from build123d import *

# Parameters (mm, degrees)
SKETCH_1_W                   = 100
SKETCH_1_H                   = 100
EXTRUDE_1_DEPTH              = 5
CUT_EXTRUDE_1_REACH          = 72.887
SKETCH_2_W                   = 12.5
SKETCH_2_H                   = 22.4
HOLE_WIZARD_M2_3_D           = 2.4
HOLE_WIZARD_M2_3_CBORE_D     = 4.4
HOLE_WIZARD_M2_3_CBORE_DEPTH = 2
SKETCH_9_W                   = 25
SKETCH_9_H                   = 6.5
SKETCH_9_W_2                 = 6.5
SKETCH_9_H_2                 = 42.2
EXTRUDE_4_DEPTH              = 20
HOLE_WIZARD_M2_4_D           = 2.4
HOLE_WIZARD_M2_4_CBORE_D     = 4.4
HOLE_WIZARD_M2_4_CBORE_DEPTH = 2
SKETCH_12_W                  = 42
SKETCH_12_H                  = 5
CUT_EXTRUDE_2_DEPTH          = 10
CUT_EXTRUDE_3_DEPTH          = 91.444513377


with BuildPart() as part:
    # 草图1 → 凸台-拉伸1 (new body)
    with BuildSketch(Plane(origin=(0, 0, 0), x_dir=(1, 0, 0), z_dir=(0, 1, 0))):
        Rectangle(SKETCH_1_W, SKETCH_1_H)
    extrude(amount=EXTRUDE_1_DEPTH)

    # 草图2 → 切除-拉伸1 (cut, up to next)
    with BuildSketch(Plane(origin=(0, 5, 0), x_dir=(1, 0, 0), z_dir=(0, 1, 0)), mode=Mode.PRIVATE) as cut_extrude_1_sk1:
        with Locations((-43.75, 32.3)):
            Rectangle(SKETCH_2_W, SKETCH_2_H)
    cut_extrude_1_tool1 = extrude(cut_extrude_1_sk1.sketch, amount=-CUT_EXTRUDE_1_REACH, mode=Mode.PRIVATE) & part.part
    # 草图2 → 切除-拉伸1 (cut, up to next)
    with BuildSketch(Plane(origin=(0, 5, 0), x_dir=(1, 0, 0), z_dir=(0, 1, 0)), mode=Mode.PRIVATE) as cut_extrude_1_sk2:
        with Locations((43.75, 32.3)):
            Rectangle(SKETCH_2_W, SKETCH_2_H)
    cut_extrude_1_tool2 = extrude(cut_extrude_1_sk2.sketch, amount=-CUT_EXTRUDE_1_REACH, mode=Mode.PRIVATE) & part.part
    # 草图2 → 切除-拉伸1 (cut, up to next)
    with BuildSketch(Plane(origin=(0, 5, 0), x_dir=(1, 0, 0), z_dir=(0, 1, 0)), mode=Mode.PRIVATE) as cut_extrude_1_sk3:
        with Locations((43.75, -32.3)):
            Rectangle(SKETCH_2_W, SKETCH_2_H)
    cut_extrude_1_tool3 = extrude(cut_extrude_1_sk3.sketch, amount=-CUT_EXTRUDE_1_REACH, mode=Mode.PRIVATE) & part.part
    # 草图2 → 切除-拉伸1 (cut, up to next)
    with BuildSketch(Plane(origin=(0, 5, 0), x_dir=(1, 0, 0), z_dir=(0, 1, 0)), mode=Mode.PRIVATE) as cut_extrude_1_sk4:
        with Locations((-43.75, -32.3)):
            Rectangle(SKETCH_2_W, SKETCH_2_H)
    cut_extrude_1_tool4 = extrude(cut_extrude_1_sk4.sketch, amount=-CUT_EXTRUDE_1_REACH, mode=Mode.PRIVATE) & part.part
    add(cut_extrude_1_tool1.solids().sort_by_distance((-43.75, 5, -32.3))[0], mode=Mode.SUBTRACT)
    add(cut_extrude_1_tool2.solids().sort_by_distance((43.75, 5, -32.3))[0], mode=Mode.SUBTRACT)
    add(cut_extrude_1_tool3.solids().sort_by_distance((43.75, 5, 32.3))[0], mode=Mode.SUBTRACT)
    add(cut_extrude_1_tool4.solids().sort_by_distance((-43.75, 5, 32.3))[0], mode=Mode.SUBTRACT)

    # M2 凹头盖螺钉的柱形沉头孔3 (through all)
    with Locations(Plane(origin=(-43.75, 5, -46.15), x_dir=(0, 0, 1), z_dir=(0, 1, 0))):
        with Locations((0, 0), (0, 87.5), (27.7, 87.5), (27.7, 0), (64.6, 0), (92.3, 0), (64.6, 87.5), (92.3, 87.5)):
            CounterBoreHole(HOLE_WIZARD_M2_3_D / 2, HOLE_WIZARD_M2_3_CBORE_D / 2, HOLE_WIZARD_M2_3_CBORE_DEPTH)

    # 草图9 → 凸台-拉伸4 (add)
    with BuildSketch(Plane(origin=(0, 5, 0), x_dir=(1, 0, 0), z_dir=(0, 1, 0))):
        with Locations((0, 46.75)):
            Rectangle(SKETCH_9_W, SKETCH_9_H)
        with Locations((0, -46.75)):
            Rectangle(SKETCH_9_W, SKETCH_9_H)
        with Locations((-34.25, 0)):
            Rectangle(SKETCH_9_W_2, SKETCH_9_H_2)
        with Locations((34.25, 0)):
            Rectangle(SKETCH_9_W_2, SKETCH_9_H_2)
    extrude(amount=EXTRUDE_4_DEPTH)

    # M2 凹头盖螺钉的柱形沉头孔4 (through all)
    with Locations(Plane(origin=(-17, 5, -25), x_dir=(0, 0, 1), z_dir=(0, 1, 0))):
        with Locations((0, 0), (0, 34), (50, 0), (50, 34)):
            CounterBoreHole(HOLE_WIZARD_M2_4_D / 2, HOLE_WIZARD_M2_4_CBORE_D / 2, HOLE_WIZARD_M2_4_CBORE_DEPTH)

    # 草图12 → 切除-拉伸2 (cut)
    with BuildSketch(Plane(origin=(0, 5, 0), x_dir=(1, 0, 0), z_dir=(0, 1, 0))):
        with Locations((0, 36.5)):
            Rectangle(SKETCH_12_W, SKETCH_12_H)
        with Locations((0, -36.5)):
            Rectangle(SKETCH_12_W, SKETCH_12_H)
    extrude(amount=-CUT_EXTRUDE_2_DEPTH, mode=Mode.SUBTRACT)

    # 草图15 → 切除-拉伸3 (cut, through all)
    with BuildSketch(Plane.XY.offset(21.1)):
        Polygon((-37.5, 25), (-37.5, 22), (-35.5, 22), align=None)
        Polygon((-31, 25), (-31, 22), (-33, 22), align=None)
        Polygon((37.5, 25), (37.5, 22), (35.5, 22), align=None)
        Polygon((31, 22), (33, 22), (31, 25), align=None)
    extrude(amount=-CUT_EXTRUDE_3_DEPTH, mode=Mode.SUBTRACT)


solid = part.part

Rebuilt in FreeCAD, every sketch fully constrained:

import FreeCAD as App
import Part
import Sketcher

V = App.Vector

doc = App.newDocument("Part")
body = doc.addObject("PartDesign::Body", "Body")

# Sketch on XZ plane
sketch1 = body.newObject("Sketcher::SketchObject", "Sketch")
sketch1.AttachmentSupport = (doc.getObject("XZ_Plane"), [""])
sketch1.MapMode = "FlatFace"
sketch1.addGeometry([
    Part.LineSegment(V(-50, -50, 0), V(-50, 50, 0)),
    Part.LineSegment(V(-50, 50, 0), V(50, 50, 0)),
    Part.LineSegment(V(50, 50, 0), V(50, -50, 0)),
    Part.LineSegment(V(50, -50, 0), V(-50, -50, 0)),
], False)
sketch1.addConstraint([
    Sketcher.Constraint("Coincident", 0, 2, 1, 1),
    Sketcher.Constraint("Coincident", 1, 2, 2, 1),
    Sketcher.Constraint("Coincident", 2, 2, 3, 1),
    Sketcher.Constraint("Coincident", 3, 2, 0, 1),
    Sketcher.Constraint("Vertical", 0),
    Sketcher.Constraint("Horizontal", 1),
    Sketcher.Constraint("Vertical", 2),
    Sketcher.Constraint("Horizontal", 3),
    Sketcher.Constraint("Symmetric", 0, 2, 2, 2, -1, 1),
    Sketcher.Constraint("Equal", 3, 0),
    Sketcher.Constraint("DistanceX", 1, 1, 1, 2, 100.0),
])
pad1 = body.newObject("PartDesign::Pad", "Pad")
pad1.Profile = sketch1
pad1.Length = 5
pad1.Reversed = True

# Sketch on XZ plane
sketch2 = body.newObject("Sketcher::SketchObject", "Sketch001")
sketch2.AttachmentSupport = (doc.getObject("XZ_Plane"), [""])
sketch2.MapMode = "FlatFace"
sketch2.AttachmentOffset = App.Placement(V(0, 0, -5), App.Rotation())
sketch2.addGeometry([
    Part.LineSegment(V(-50, -43.5, 0), V(-50, -21.1, 0)),
    Part.LineSegment(V(-50, -21.1, 0), V(-37.5, -21.1, 0)),
    Part.LineSegment(V(-37.5, -21.1, 0), V(-37.5, -43.5, 0)),
    Part.LineSegment(V(-37.5, -43.5, 0), V(-50, -43.5, 0)),
], False)
sketch2.addConstraint([
    Sketcher.Constraint("Coincident", 0, 2, 1, 1),
    Sketcher.Constraint("Coincident", 1, 2, 2, 1),
    Sketcher.Constraint("Coincident", 2, 2, 3, 1),
    Sketcher.Constraint("Coincident", 3, 2, 0, 1),
    Sketcher.Constraint("Vertical", 0),
    Sketcher.Constraint("Horizontal", 1),
    Sketcher.Constraint("Vertical", 2),
    Sketcher.Constraint("Horizontal", 3),
    Sketcher.Constraint("DistanceX", 1, 1, 1, 2, 12.5),
    Sketcher.Constraint("DistanceY", 0, 1, 0, 2, 22.4),
    Sketcher.Constraint("DistanceX", 0, 2, -1, 1, 50.0),
    Sketcher.Constraint("DistanceY", 0, 2, -1, 1, 21.1),
])
pocket1 = body.newObject("PartDesign::Pocket", "Pocket")
pocket1.Profile = sketch2
pocket1.Type = "UpToFirst"
pocket1.Reversed = True

# Sketch on XZ plane
sketch3 = body.newObject("Sketcher::SketchObject", "Sketch002")
sketch3.AttachmentSupport = (doc.getObject("XZ_Plane"), [""])
sketch3.MapMode = "FlatFace"
sketch3.AttachmentOffset = App.Placement(V(0, 0, -5), App.Rotation())
sketch3.addGeometry([
    Part.LineSegment(V(37.5, -43.5, 0), V(37.5, -21.1, 0)),
    Part.LineSegment(V(37.5, -21.1, 0), V(50, -21.1, 0)),
    Part.LineSegment(V(50, -21.1, 0), V(50, -43.5, 0)),
    Part.LineSegment(V(50, -43.5, 0), V(37.5, -43.5, 0)),
], False)
sketch3.addConstraint([
    Sketcher.Constraint("Coincident", 0, 2, 1, 1),
    Sketcher.Constraint("Coincident", 1, 2, 2, 1),
    Sketcher.Constraint("Coincident", 2, 2, 3, 1),
    Sketcher.Constraint("Coincident", 3, 2, 0, 1),
    Sketcher.Constraint("Vertical", 0),
    Sketcher.Constraint("Horizontal", 1),
    Sketcher.Constraint("Vertical", 2),
    Sketcher.Constraint("Horizontal", 3),
    Sketcher.Constraint("DistanceX", 1, 1, 1, 2, 12.5),
    Sketcher.Constraint("DistanceY", 0, 1, 0, 2, 22.4),
    Sketcher.Constraint("DistanceX", -1, 1, 1, 2, 50.0),
    Sketcher.Constraint("DistanceY", 0, 2, -1, 1, 21.1),
])
pocket2 = body.newObject("PartDesign::Pocket", "Pocket001")
pocket2.Profile = sketch3
pocket2.Type = "UpToFirst"
pocket2.Reversed = True

# Sketch on XZ plane
sketch4 = body.newObject("Sketcher::SketchObject", "Sketch003")
sketch4.AttachmentSupport = (doc.getObject("XZ_Plane"), [""])
sketch4.MapMode = "FlatFace"
sketch4.AttachmentOffset = App.Placement(V(0, 0, -5), App.Rotation())
sketch4.addGeometry([
    Part.LineSegment(V(37.5, 21.1, 0), V(37.5, 43.5, 0)),
    Part.LineSegment(V(37.5, 43.5, 0), V(50, 43.5, 0)),
    Part.LineSegment(V(50, 43.5, 0), V(50, 21.1, 0)),
    Part.LineSegment(V(50, 21.1, 0), V(37.5, 21.1, 0)),
], False)
sketch4.addConstraint([
    Sketcher.Constraint("Coincident", 0, 2, 1, 1),
    Sketcher.Constraint("Coincident", 1, 2, 2, 1),
    Sketcher.Constraint("Coincident", 2, 2, 3, 1),
    Sketcher.Constraint("Coincident", 3, 2, 0, 1),
    Sketcher.Constraint("Vertical", 0),
    Sketcher.Constraint("Horizontal", 1),
    Sketcher.Constraint("Vertical", 2),
    Sketcher.Constraint("Horizontal", 3),
    Sketcher.Constraint("DistanceX", 1, 1, 1, 2, 12.5),
    Sketcher.Constraint("DistanceY", 0, 1, 0, 2, 22.4),
    Sketcher.Constraint("DistanceX", -1, 1, 1, 2, 50.0),
    Sketcher.Constraint("DistanceY", -1, 1, 0, 2, 43.5),
])
pocket3 = body.newObject("PartDesign::Pocket", "Pocket002")
pocket3.Profile = sketch4
pocket3.Type = "UpToFirst"
pocket3.Reversed = True

# Sketch on XZ plane
sketch5 = body.newObject("Sketcher::SketchObject", "Sketch004")
sketch5.AttachmentSupport = (doc.getObject("XZ_Plane"), [""])
sketch5.MapMode = "FlatFace"
sketch5.AttachmentOffset = App.Placement(V(0, 0, -5), App.Rotation())
sketch5.addGeometry([
    Part.LineSegment(V(-50, 21.1, 0), V(-50, 43.5, 0)),
    Part.LineSegment(V(-50, 43.5, 0), V(-37.5, 43.5, 0)),
    Part.LineSegment(V(-37.5, 43.5, 0), V(-37.5, 21.1, 0)),
    Part.LineSegment(V(-37.5, 21.1, 0), V(-50, 21.1, 0)),
], False)
sketch5.addConstraint([
    Sketcher.Constraint("Coincident", 0, 2, 1, 1),
    Sketcher.Constraint("Coincident", 1, 2, 2, 1),
    Sketcher.Constraint("Coincident", 2, 2, 3, 1),
    Sketcher.Constraint("Coincident", 3, 2, 0, 1),
    Sketcher.Constraint("Vertical", 0),
    Sketcher.Constraint("Horizontal", 1),
    Sketcher.Constraint("Vertical", 2),
    Sketcher.Constraint("Horizontal", 3),
    Sketcher.Constraint("DistanceX", 1, 1, 1, 2, 12.5),
    Sketcher.Constraint("DistanceY", 0, 1, 0, 2, 22.4),
    Sketcher.Constraint("DistanceX", 0, 2, -1, 1, 50.0),
    Sketcher.Constraint("DistanceY", -1, 1, 0, 2, 43.5),
])
pocket4 = body.newObject("PartDesign::Pocket", "Pocket003")
pocket4.Profile = sketch5
pocket4.Type = "UpToFirst"
pocket4.Reversed = True

# Sketch on XZ plane
sketch6 = body.newObject("Sketcher::SketchObject", "Sketch005")
sketch6.AttachmentSupport = (doc.getObject("XZ_Plane"), [""])
sketch6.MapMode = "FlatFace"
sketch6.AttachmentOffset = App.Placement(V(0, 0, -5), App.Rotation())
sketch6.addGeometry([
    Part.Circle(V(-43.75, -46.15, 0), V(0, 0, 1), 1.2),  # 0
    Part.Circle(V(43.75, -46.15, 0), V(0, 0, 1), 1.2),  # 1
    Part.Circle(V(43.75, -18.45, 0), V(0, 0, 1), 1.2),  # 2
    Part.Circle(V(-43.75, -18.45, 0), V(0, 0, 1), 1.2),  # 3
    Part.Circle(V(-43.75, 18.45, 0), V(0, 0, 1), 1.2),  # 4
    Part.Circle(V(-43.75, 46.15, 0), V(0, 0, 1), 1.2),  # 5
    Part.Circle(V(43.75, 18.45, 0), V(0, 0, 1), 1.2),  # 6
    Part.Circle(V(43.75, 46.15, 0), V(0, 0, 1), 1.2),  # 7
], False)
sketch6.addConstraint([
    Sketcher.Constraint("Equal", 0, 1),
    Sketcher.Constraint("Equal", 1, 2),
    Sketcher.Constraint("Equal", 2, 3),
    Sketcher.Constraint("Equal", 3, 4),
    Sketcher.Constraint("Equal", 4, 5),
    Sketcher.Constraint("Equal", 5, 6),
    Sketcher.Constraint("Equal", 6, 7),
    Sketcher.Constraint("Symmetric", 2, 3, 4, 3, -1, 1),
    Sketcher.Constraint("Symmetric", 1, 3, 5, 3, -1, 1),
    Sketcher.Constraint("Symmetric", 3, 3, 6, 3, -1, 1),
    Sketcher.Constraint("Symmetric", 0, 3, 7, 3, -1, 1),
    Sketcher.Constraint("Symmetric", 0, 3, 1, 3, -2),
    Sketcher.Constraint("Symmetric", 2, 3, 3, 3, -2),
    Sketcher.Constraint("Vertical", 1, 3, 2, 3),
    Sketcher.Constraint("Diameter", 0, 2.4),
    Sketcher.Constraint("DistanceX", 0, 3, 1, 3, 87.5),
    Sketcher.Constraint("DistanceY", 1, 3, 2, 3, 27.7),
    Sketcher.Constraint("DistanceY", 3, 3, 4, 3, 36.9),
])
doc.recompute()
hole = body.newObject("PartDesign::Hole", "Hole")
hole.Profile = sketch6
hole.ThreadType = "None"
hole.Diameter = 2.4
hole.DepthType = "ThroughAll"
hole.HoleCutType = "Counterbore"
hole.HoleCutDiameter = 4.4
hole.HoleCutDepth = 2
hole.Reversed = True

# Sketch on XZ plane
sketch7 = body.newObject("Sketcher::SketchObject", "Sketch006")
sketch7.AttachmentSupport = (doc.getObject("XZ_Plane"), [""])
sketch7.MapMode = "FlatFace"
sketch7.AttachmentOffset = App.Placement(V(0, 0, -5), App.Rotation())
sketch7.addGeometry([
    Part.LineSegment(V(-12.5, -50, 0), V(-12.5, -43.5, 0)),  # 0
    Part.LineSegment(V(-12.5, -43.5, 0), V(12.5, -43.5, 0)),  # 1
    Part.LineSegment(V(12.5, -43.5, 0), V(12.5, -50, 0)),  # 2
    Part.LineSegment(V(12.5, -50, 0), V(-12.5, -50, 0)),  # 3
    Part.LineSegment(V(-12.5, 43.5, 0), V(-12.5, 50, 0)),  # 4
    Part.LineSegment(V(-12.5, 50, 0), V(12.5, 50, 0)),  # 5
    Part.LineSegment(V(12.5, 50, 0), V(12.5, 43.5, 0)),  # 6
    Part.LineSegment(V(12.5, 43.5, 0), V(-12.5, 43.5, 0)),  # 7
    Part.LineSegment(V(-37.5, -21.1, 0), V(-37.5, 21.1, 0)),  # 8
    Part.LineSegment(V(-37.5, 21.1, 0), V(-31, 21.1, 0)),  # 9
    Part.LineSegment(V(-31, 21.1, 0), V(-31, -21.1, 0)),  # 10
    Part.LineSegment(V(-31, -21.1, 0), V(-37.5, -21.1, 0)),  # 11
    Part.LineSegment(V(31, -21.1, 0), V(31, 21.1, 0)),  # 12
    Part.LineSegment(V(31, 21.1, 0), V(37.5, 21.1, 0)),  # 13
    Part.LineSegment(V(37.5, 21.1, 0), V(37.5, -21.1, 0)),  # 14
    Part.LineSegment(V(37.5, -21.1, 0), V(31, -21.1, 0)),  # 15
], False)
sketch7.addConstraint([
    Sketcher.Constraint("Coincident", 0, 2, 1, 1),
    Sketcher.Constraint("Coincident", 1, 2, 2, 1),
    Sketcher.Constraint("Coincident", 2, 2, 3, 1),
    Sketcher.Constraint("Coincident", 3, 2, 0, 1),
    Sketcher.Constraint("Coincident", 4, 2, 5, 1),
    Sketcher.Constraint("Coincident", 5, 2, 6, 1),
    Sketcher.Constraint("Coincident", 6, 2, 7, 1),
    Sketcher.Constraint("Coincident", 7, 2, 4, 1),
    Sketcher.Constraint("Coincident", 8, 2, 9, 1),
    Sketcher.Constraint("Coincident", 9, 2, 10, 1),
    Sketcher.Constraint("Coincident", 10, 2, 11, 1),
    Sketcher.Constraint("Coincident", 11, 2, 8, 1),
    Sketcher.Constraint("Coincident", 12, 2, 13, 1),
    Sketcher.Constraint("Coincident", 13, 2, 14, 1),
    Sketcher.Constraint("Coincident", 14, 2, 15, 1),
    Sketcher.Constraint("Coincident", 15, 2, 12, 1),
    Sketcher.Constraint("Vertical", 0),
    Sketcher.Constraint("Horizontal", 1),
    Sketcher.Constraint("Vertical", 2),
    Sketcher.Constraint("Horizontal", 3),
    Sketcher.Constraint("Vertical", 4),
    Sketcher.Constraint("Horizontal", 5),
    Sketcher.Constraint("Vertical", 6),
    Sketcher.Constraint("Horizontal", 7),
    Sketcher.Constraint("Vertical", 8),
    Sketcher.Constraint("Horizontal", 9),
    Sketcher.Constraint("Vertical", 10),
    Sketcher.Constraint("Horizontal", 11),
    Sketcher.Constraint("Vertical", 12),
    Sketcher.Constraint("Horizontal", 13),
    Sketcher.Constraint("Vertical", 14),
    Sketcher.Constraint("Horizontal", 15),
    Sketcher.Constraint("Symmetric", 2, 2, 4, 2, -1, 1),
    Sketcher.Constraint("Symmetric", 0, 2, 6, 2, -1, 1),
    Sketcher.Constraint("Symmetric", 10, 2, 12, 2, -1, 1),
    Sketcher.Constraint("Symmetric", 8, 2, 14, 2, -1, 1),
    Sketcher.Constraint("Horizontal", 9, 2, 12, 2),
    Sketcher.Constraint("Vertical", 3, 2, 4, 2),
    Sketcher.Constraint("Equal", 15, 0),
    Sketcher.Constraint("DistanceX", 1, 1, 1, 2, 25.0),
    Sketcher.Constraint("DistanceX", 9, 1, 9, 2, 6.5),
    Sketcher.Constraint("DistanceY", 8, 1, 8, 2, 42.2),
    Sketcher.Constraint("DistanceY", 2, 2, -1, 1, 50.0),
    Sketcher.Constraint("DistanceX", 9, 2, -1, 1, 31.0),
])
pad2 = body.newObject("PartDesign::Pad", "Pad001")
pad2.Profile = sketch7
pad2.Length = 20
pad2.Reversed = True

# Sketch on XZ plane
sketch8 = body.newObject("Sketcher::SketchObject", "Sketch007")
sketch8.AttachmentSupport = (doc.getObject("XZ_Plane"), [""])
sketch8.MapMode = "FlatFace"
sketch8.AttachmentOffset = App.Placement(V(0, 0, -5), App.Rotation())
sketch8.addGeometry([
    Part.Circle(V(-17, -25, 0), V(0, 0, 1), 1.2),
    Part.Circle(V(17, -25, 0), V(0, 0, 1), 1.2),
    Part.Circle(V(-17, 25, 0), V(0, 0, 1), 1.2),
    Part.Circle(V(17, 25, 0), V(0, 0, 1), 1.2),
], False)
sketch8.addConstraint([
    Sketcher.Constraint("Equal", 0, 1),
    Sketcher.Constraint("Equal", 1, 2),
    Sketcher.Constraint("Equal", 2, 3),
    Sketcher.Constraint("Symmetric", 1, 3, 2, 3, -1, 1),
    Sketcher.Constraint("Symmetric", 0, 3, 3, 3, -1, 1),
    Sketcher.Constraint("Symmetric", 0, 3, 1, 3, -2),
    Sketcher.Constraint("Diameter", 0, 2.4),
    Sketcher.Constraint("DistanceX", 0, 3, -1, 1, 17.0),
    Sketcher.Constraint("DistanceY", 0, 3, -1, 1, 25.0),
])
doc.recompute()
hole2 = body.newObject("PartDesign::Hole", "Hole001")
hole2.Profile = sketch8
hole2.ThreadType = "None"
hole2.Diameter = 2.4
hole2.DepthType = "ThroughAll"
hole2.HoleCutType = "Counterbore"
hole2.HoleCutDiameter = 4.4
hole2.HoleCutDepth = 2
hole2.Reversed = True

# Sketch on XZ plane
sketch9 = body.newObject("Sketcher::SketchObject", "Sketch008")
sketch9.AttachmentSupport = (doc.getObject("XZ_Plane"), [""])
sketch9.MapMode = "FlatFace"
sketch9.AttachmentOffset = App.Placement(V(0, 0, -5), App.Rotation())
sketch9.addGeometry([
    Part.LineSegment(V(-21, -39, 0), V(-21, -34, 0)),  # 0
    Part.LineSegment(V(-21, -34, 0), V(21, -34, 0)),  # 1
    Part.LineSegment(V(21, -34, 0), V(21, -39, 0)),  # 2
    Part.LineSegment(V(21, -39, 0), V(-21, -39, 0)),  # 3
    Part.LineSegment(V(-21, 34, 0), V(-21, 39, 0)),  # 4
    Part.LineSegment(V(-21, 39, 0), V(21, 39, 0)),  # 5
    Part.LineSegment(V(21, 39, 0), V(21, 34, 0)),  # 6
    Part.LineSegment(V(21, 34, 0), V(-21, 34, 0)),  # 7
], False)
sketch9.addConstraint([
    Sketcher.Constraint("Coincident", 0, 2, 1, 1),
    Sketcher.Constraint("Coincident", 1, 2, 2, 1),
    Sketcher.Constraint("Coincident", 2, 2, 3, 1),
    Sketcher.Constraint("Coincident", 3, 2, 0, 1),
    Sketcher.Constraint("Coincident", 4, 2, 5, 1),
    Sketcher.Constraint("Coincident", 5, 2, 6, 1),
    Sketcher.Constraint("Coincident", 6, 2, 7, 1),
    Sketcher.Constraint("Coincident", 7, 2, 4, 1),
    Sketcher.Constraint("Vertical", 0),
    Sketcher.Constraint("Horizontal", 1),
    Sketcher.Constraint("Vertical", 2),
    Sketcher.Constraint("Horizontal", 3),
    Sketcher.Constraint("Vertical", 4),
    Sketcher.Constraint("Horizontal", 5),
    Sketcher.Constraint("Vertical", 6),
    Sketcher.Constraint("Horizontal", 7),
    Sketcher.Constraint("Symmetric", 2, 2, 4, 2, -1, 1),
    Sketcher.Constraint("Symmetric", 0, 2, 6, 2, -1, 1),
    Sketcher.Constraint("Vertical", 3, 2, 4, 2),
    Sketcher.Constraint("DistanceX", 1, 1, 1, 2, 42.0),
    Sketcher.Constraint("DistanceY", 0, 1, 0, 2, 5.0),
    Sketcher.Constraint("DistanceY", 0, 2, -1, 1, 34.0),
])
pocket5 = body.newObject("PartDesign::Pocket", "Pocket004")
pocket5.Profile = sketch9
pocket5.Length = 10
pocket5.Reversed = True

# Sketch on XY plane
sketch10 = body.newObject("Sketcher::SketchObject", "Sketch009")
sketch10.AttachmentSupport = (doc.getObject("XY_Plane"), [""])
sketch10.MapMode = "FlatFace"
sketch10.AttachmentOffset = App.Placement(V(0, 0, 21.1), App.Rotation())
sketch10.addGeometry([
    Part.LineSegment(V(-37.5, 25, 0), V(-37.5, 22, 0)),  # 0
    Part.LineSegment(V(-37.5, 22, 0), V(-35.5, 22, 0)),  # 1
    Part.LineSegment(V(-35.5, 22, 0), V(-37.5, 25, 0)),  # 2
    Part.LineSegment(V(-31, 22, 0), V(-31, 25, 0)),  # 3
    Part.LineSegment(V(-31, 25, 0), V(-33, 22, 0)),  # 4
    Part.LineSegment(V(-33, 22, 0), V(-31, 22, 0)),  # 5
    Part.LineSegment(V(37.5, 22, 0), V(37.5, 25, 0)),  # 6
    Part.LineSegment(V(37.5, 25, 0), V(35.5, 22, 0)),  # 7
    Part.LineSegment(V(35.5, 22, 0), V(37.5, 22, 0)),  # 8
    Part.LineSegment(V(31, 22, 0), V(33, 22, 0)),  # 9
    Part.LineSegment(V(33, 22, 0), V(31, 25, 0)),  # 10
    Part.LineSegment(V(31, 25, 0), V(31, 22, 0)),  # 11
], False)
sketch10.addConstraint([
    Sketcher.Constraint("Coincident", 0, 2, 1, 1),
    Sketcher.Constraint("Coincident", 1, 2, 2, 1),
    Sketcher.Constraint("Coincident", 2, 2, 0, 1),
    Sketcher.Constraint("Coincident", 3, 2, 4, 1),
    Sketcher.Constraint("Coincident", 4, 2, 5, 1),
    Sketcher.Constraint("Coincident", 5, 2, 3, 1),
    Sketcher.Constraint("Coincident", 6, 2, 7, 1),
    Sketcher.Constraint("Coincident", 7, 2, 8, 1),
    Sketcher.Constraint("Coincident", 8, 2, 6, 1),
    Sketcher.Constraint("Coincident", 9, 2, 10, 1),
    Sketcher.Constraint("Coincident", 10, 2, 11, 1),
    Sketcher.Constraint("Coincident", 11, 2, 9, 1),
    Sketcher.Constraint("Vertical", 0),
    Sketcher.Constraint("Horizontal", 1),
    Sketcher.Constraint("Vertical", 3),
    Sketcher.Constraint("Horizontal", 5),
    Sketcher.Constraint("Vertical", 6),
    Sketcher.Constraint("Horizontal", 8),
    Sketcher.Constraint("Horizontal", 9),
    Sketcher.Constraint("Vertical", 11),
    Sketcher.Constraint("Symmetric", 2, 2, 6, 2, -2),
    Sketcher.Constraint("Symmetric", 1, 2, 7, 2, -2),
    Sketcher.Constraint("Symmetric", 4, 2, 9, 2, -2),
    Sketcher.Constraint("Symmetric", 3, 2, 10, 2, -2),
    Sketcher.Constraint("Parallel", 4, 7),
    Sketcher.Constraint("Horizontal", 2, 2, 3, 2),
    Sketcher.Constraint("Horizontal", 1, 2, 4, 2),
    Sketcher.Constraint("DistanceX", 1, 1, 1, 2, 2.0),
    Sketcher.Constraint("DistanceY", 0, 2, 0, 1, 3.0),
    Sketcher.Constraint("DistanceY", -1, 1, 0, 2, 22.0),
    Sketcher.Constraint("DistanceX", 3, 2, -1, 1, 31.0),
    Sketcher.Constraint("DistanceX", 1, 2, 6, 2, 73.0),
])
pocket6 = body.newObject("PartDesign::Pocket", "Pocket005")
pocket6.Profile = sketch10
pocket6.Type = "ThroughAll"

doc.recompute()
